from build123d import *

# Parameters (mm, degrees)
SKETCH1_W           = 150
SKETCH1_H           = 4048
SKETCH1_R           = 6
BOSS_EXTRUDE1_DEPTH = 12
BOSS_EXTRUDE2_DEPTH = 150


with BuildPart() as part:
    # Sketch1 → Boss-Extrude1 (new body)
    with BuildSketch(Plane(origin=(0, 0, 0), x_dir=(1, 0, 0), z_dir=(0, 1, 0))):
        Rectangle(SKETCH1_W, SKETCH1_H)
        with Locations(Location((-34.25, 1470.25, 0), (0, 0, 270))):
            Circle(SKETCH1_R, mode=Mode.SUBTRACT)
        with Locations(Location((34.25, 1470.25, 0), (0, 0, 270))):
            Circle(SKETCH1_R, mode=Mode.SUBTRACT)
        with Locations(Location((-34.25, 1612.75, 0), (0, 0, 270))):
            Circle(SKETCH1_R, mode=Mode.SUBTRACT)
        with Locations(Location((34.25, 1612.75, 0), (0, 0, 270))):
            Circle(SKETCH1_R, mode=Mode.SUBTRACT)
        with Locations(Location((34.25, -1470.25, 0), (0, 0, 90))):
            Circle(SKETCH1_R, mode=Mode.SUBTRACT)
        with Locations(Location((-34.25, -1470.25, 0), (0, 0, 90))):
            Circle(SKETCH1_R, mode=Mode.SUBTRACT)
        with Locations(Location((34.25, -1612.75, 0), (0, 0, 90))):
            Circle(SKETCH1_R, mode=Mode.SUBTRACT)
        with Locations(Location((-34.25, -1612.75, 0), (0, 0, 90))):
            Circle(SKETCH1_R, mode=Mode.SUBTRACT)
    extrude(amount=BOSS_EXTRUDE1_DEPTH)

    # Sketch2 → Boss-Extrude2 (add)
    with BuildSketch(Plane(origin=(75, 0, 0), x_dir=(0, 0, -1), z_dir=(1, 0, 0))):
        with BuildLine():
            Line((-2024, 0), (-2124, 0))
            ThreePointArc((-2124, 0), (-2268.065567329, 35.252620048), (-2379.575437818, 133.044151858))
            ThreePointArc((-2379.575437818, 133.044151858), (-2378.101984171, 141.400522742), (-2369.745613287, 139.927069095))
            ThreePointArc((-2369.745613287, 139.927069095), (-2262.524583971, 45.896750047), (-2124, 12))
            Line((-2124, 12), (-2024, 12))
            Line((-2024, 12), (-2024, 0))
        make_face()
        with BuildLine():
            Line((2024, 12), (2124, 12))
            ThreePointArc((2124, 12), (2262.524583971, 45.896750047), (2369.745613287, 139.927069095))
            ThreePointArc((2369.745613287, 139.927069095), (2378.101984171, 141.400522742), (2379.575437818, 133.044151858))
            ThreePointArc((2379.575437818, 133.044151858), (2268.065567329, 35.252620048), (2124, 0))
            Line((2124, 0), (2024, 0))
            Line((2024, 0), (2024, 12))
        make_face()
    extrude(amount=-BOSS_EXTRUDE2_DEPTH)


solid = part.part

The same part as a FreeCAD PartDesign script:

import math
import FreeCAD as App
import Part
import Sketcher
Q = App.Units.Quantity


def add_polygon(sketch, points):
    """Adds a closed chain of lines whose ends are joined by coincident constraints."""
    first, n = sketch.GeometryCount, len(points)
    for a, b in zip(points, points[1:] + points[:1]):
        sketch.addGeometry(Part.LineSegment(App.Vector(*a, 0), App.Vector(*b, 0)), False)
    for i in range(n):
        sketch.addConstraint(Sketcher.Constraint("Coincident", first + i, 2, first + (i + 1) % n, 1))

doc = App.newDocument("Part")
body = doc.addObject("PartDesign::Body", "Body")

sketch1 = body.newObject("Sketcher::SketchObject", "Sketch")
sketch1.AttachmentSupport = (doc.getObject("XZ_Plane"), [""])
sketch1.MapMode = "FlatFace"
add_polygon(sketch1, [(-75, -2024), (-75, 2024), (75, 2024), (75, -2024)])
sketch1.addGeometry(Part.Circle(App.Vector(-34, 1613, 0), App.Vector(0, 0, 1), 6), False)
sketch1.addGeometry(Part.Circle(App.Vector(-34, 1470, 0), App.Vector(0, 0, 1), 6), False)
sketch1.addGeometry(Part.Circle(App.Vector(34, 1613, 0), App.Vector(0, 0, 1), 6), False)
sketch1.addGeometry(Part.Circle(App.Vector(34, 1470, 0), App.Vector(0, 0, 1), 6), False)
sketch1.addGeometry(Part.Circle(App.Vector(-34, -1470, 0), App.Vector(0, 0, 1), 6), False)
sketch1.addGeometry(Part.Circle(App.Vector(-34, -1613, 0), App.Vector(0, 0, 1), 6), False)
sketch1.addGeometry(Part.Circle(App.Vector(34, -1470, 0), App.Vector(0, 0, 1), 6), False)
sketch1.addGeometry(Part.Circle(App.Vector(34, -1613, 0), App.Vector(0, 0, 1), 6), False)
sketch1.addConstraint(Sketcher.Constraint("Vertical", 0))
sketch1.addConstraint(Sketcher.Constraint("Horizontal", 1))
sketch1.addConstraint(Sketcher.Constraint("Vertical", 2))
sketch1.addConstraint(Sketcher.Constraint("Horizontal", 3))
sketch1.addConstraint(Sketcher.Constraint("Equal", 4, 5))
sketch1.addConstraint(Sketcher.Constraint("Equal", 5, 6))
sketch1.addConstraint(Sketcher.Constraint("Equal", 6, 7))
sketch1.addConstraint(Sketcher.Constraint("Equal", 7, 8))
sketch1.addConstraint(Sketcher.Constraint("Equal", 8, 9))
sketch1.addConstraint(Sketcher.Constraint("Equal", 9, 10))
sketch1.addConstraint(Sketcher.Constraint("Equal", 10, 11))
sketch1.addConstraint(Sketcher.Constraint("Symmetric", 7, 3, 8, 3, -1, 1))
sketch1.addConstraint(Sketcher.Constraint("Symmetric", 6, 3, 9, 3, -1, 1))
sketch1.addConstraint(Sketcher.Constraint("Symmetric", 5, 3, 10, 3, -1, 1))
sketch1.addConstraint(Sketcher.Constraint("Symmetric", 4, 3, 11, 3, -1, 1))
sketch1.addConstraint(Sketcher.Constraint("Symmetric", 0, 2, 2, 2, -1, 1))
sketch1.addConstraint(Sketcher.Constraint("Symmetric", 4, 3, 6, 3, -2))
sketch1.addConstraint(Sketcher.Constraint("Symmetric", 5, 3, 7, 3, -2))
sketch1.addConstraint(Sketcher.Constraint("Vertical", 4, 3, 5, 3))
sketch1.addConstraint(Sketcher.Constraint("Diameter", 4, Q("12 mm")))
sketch1.addConstraint(Sketcher.Constraint("DistanceX", 1, 1, 1, 2, Q("150 mm")))
sketch1.addConstraint(Sketcher.Constraint("DistanceY", 0, 1, 0, 2, Q("4048 mm")))
sketch1.addConstraint(Sketcher.Constraint("DistanceY", 8, 3, 4, 3, Q("3083 mm")))
sketch1.addConstraint(Sketcher.Constraint("DistanceY", 5, 3, 4, 3, Q("142.5 mm")))
sketch1.addConstraint(Sketcher.Constraint("DistanceX", 4, 3, 6, 3, Q("68.5 mm")))
pad1 = body.newObject("PartDesign::Pad", "Pad")
pad1.Profile = sketch1
pad1.Length = 12
pad1.Reversed = True

sketch2 = body.newObject("Sketcher::SketchObject", "Sketch001")
sketch2.AttachmentSupport = (doc.getObject("YZ_Plane"), [""])
sketch2.MapMode = "FlatFace"
sketch2.AttachmentOffset = App.Placement(App.Vector(0, 0, 75), App.Rotation())
sketch2.addGeometry(Part.LineSegment(App.Vector(0, 2124, 0), App.Vector(0, 2024, 0)), False)
sketch2.addGeometry(Part.LineSegment(App.Vector(0, 2024, 0), App.Vector(12, 2024, 0)), False)
sketch2.addGeometry(Part.LineSegment(App.Vector(12, 2024, 0), App.Vector(12, 2124, 0)), False)
sketch2.addGeometry(Part.ArcOfCircle(Part.Circle(App.Vector(312, 2124, 0), App.Vector(0, 0, 1), 300), math.radians(125), math.radians(180)), False)
sketch2.addGeometry(Part.ArcOfCircle(Part.Circle(App.Vector(136, 2375, 0), App.Vector(0, 0, 1), 6), math.radians(-55), math.radians(125)), False)
sketch2.addGeometry(Part.ArcOfCircle(Part.Circle(App.Vector(312, 2124, 0), App.Vector(0, 0, 1), 312), math.radians(125), math.radians(180)), False)
sketch2.addGeometry(Part.LineSegment(App.Vector(12, -2124, 0), App.Vector(12, -2024, 0)), False)
sketch2.addGeometry(Part.LineSegment(App.Vector(12, -2024, 0), App.Vector(0, -2024, 0)), False)
sketch2.addGeometry(Part.LineSegment(App.Vector(0, -2024, 0), App.Vector(0, -2124, 0)), False)
sketch2.addGeometry(Part.ArcOfCircle(Part.Circle(App.Vector(312, -2124, 0), App.Vector(0, 0, 1), 312), math.radians(180), math.radians(235)), False)
sketch2.addGeometry(Part.ArcOfCircle(Part.Circle(App.Vector(136, -2375, 0), App.Vector(0, 0, 1), 6), math.radians(-125), math.radians(55)), False)
sketch2.addGeometry(Part.ArcOfCircle(Part.Circle(App.Vector(312, -2124, 0), App.Vector(0, 0, 1), 300), math.radians(-180), math.radians(-125)), False)
sketch2.addConstraint(Sketcher.Constraint("Coincident", 0, 2, 1, 1))
sketch2.addConstraint(Sketcher.Constraint("Coincident", 1, 2, 2, 1))
sketch2.addConstraint(Sketcher.Constraint("Tangent", 2, 2, 3, 2))
sketch2.addConstraint(Sketcher.Constraint("Tangent", 3, 1, 4, 1))
sketch2.addConstraint(Sketcher.Constraint("Tangent", 4, 2, 5, 1))
sketch2.addConstraint(Sketcher.Constraint("Tangent", 5, 2, 0, 1))
sketch2.addConstraint(Sketcher.Constraint("Coincident", 6, 2, 7, 1))
sketch2.addConstraint(Sketcher.Constraint("Coincident", 7, 2, 8, 1))
sketch2.addConstraint(Sketcher.Constraint("Tangent", 8, 2, 9, 1))
sketch2.addConstraint(Sketcher.Constraint("Tangent", 9, 2, 10, 1))
sketch2.addConstraint(Sketcher.Constraint("Tangent", 10, 2, 11, 2))
sketch2.addConstraint(Sketcher.Constraint("Tangent", 11, 1, 6, 1))
sketch2.addConstraint(Sketcher.Constraint("Vertical", 0))
sketch2.addConstraint(Sketcher.Constraint("Horizontal", 1))
sketch2.addConstraint(Sketcher.Constraint("Vertical", 2))
sketch2.addConstraint(Sketcher.Constraint("Vertical", 6))
sketch2.addConstraint(Sketcher.Constraint("Horizontal", 7))
sketch2.addConstraint(Sketcher.Constraint("Vertical", 8))
sketch2.addConstraint(Sketcher.Constraint("Coincident", 5, 3, 3, 3))
sketch2.addConstraint(Sketcher.Constraint("Coincident", 11, 3, 9, 3))
sketch2.addConstraint(Sketcher.Constraint("Equal", 5, 9))
sketch2.addConstraint(Sketcher.Constraint("Equal", 4, 10))
sketch2.addConstraint(Sketcher.Constraint("Symmetric", 0, 2, 7, 2, -1, 1))
sketch2.addConstraint(Sketcher.Constraint("Symmetric", 3, 3, 9, 3, -1))
sketch2.addConstraint(Sketcher.Constraint("Vertical", 4, 3, 10, 3))
sketch2.addConstraint(Sketcher.Constraint("Radius", 3, Q("300 mm")))
sketch2.addConstraint(Sketcher.Constraint("Radius", 4, Q("6 mm")))
sketch2.addConstraint(Sketcher.Constraint("DistanceY", 0, 2, 0, 1, Q("100 mm")))
sketch2.addConstraint(Sketcher.Constraint("DistanceY", -1, 1, 3, 3, Q("2124 mm")))
sketch2.addConstraint(Sketcher.Constraint("DistanceX", -1, 1, 4, 3, Q("136.48561 mm")))
pad2 = body.newObject("PartDesign::Pad", "Pad001")
pad2.Profile = sketch2
pad2.Length = 150
pad2.Reversed = True

doc.recompute()
